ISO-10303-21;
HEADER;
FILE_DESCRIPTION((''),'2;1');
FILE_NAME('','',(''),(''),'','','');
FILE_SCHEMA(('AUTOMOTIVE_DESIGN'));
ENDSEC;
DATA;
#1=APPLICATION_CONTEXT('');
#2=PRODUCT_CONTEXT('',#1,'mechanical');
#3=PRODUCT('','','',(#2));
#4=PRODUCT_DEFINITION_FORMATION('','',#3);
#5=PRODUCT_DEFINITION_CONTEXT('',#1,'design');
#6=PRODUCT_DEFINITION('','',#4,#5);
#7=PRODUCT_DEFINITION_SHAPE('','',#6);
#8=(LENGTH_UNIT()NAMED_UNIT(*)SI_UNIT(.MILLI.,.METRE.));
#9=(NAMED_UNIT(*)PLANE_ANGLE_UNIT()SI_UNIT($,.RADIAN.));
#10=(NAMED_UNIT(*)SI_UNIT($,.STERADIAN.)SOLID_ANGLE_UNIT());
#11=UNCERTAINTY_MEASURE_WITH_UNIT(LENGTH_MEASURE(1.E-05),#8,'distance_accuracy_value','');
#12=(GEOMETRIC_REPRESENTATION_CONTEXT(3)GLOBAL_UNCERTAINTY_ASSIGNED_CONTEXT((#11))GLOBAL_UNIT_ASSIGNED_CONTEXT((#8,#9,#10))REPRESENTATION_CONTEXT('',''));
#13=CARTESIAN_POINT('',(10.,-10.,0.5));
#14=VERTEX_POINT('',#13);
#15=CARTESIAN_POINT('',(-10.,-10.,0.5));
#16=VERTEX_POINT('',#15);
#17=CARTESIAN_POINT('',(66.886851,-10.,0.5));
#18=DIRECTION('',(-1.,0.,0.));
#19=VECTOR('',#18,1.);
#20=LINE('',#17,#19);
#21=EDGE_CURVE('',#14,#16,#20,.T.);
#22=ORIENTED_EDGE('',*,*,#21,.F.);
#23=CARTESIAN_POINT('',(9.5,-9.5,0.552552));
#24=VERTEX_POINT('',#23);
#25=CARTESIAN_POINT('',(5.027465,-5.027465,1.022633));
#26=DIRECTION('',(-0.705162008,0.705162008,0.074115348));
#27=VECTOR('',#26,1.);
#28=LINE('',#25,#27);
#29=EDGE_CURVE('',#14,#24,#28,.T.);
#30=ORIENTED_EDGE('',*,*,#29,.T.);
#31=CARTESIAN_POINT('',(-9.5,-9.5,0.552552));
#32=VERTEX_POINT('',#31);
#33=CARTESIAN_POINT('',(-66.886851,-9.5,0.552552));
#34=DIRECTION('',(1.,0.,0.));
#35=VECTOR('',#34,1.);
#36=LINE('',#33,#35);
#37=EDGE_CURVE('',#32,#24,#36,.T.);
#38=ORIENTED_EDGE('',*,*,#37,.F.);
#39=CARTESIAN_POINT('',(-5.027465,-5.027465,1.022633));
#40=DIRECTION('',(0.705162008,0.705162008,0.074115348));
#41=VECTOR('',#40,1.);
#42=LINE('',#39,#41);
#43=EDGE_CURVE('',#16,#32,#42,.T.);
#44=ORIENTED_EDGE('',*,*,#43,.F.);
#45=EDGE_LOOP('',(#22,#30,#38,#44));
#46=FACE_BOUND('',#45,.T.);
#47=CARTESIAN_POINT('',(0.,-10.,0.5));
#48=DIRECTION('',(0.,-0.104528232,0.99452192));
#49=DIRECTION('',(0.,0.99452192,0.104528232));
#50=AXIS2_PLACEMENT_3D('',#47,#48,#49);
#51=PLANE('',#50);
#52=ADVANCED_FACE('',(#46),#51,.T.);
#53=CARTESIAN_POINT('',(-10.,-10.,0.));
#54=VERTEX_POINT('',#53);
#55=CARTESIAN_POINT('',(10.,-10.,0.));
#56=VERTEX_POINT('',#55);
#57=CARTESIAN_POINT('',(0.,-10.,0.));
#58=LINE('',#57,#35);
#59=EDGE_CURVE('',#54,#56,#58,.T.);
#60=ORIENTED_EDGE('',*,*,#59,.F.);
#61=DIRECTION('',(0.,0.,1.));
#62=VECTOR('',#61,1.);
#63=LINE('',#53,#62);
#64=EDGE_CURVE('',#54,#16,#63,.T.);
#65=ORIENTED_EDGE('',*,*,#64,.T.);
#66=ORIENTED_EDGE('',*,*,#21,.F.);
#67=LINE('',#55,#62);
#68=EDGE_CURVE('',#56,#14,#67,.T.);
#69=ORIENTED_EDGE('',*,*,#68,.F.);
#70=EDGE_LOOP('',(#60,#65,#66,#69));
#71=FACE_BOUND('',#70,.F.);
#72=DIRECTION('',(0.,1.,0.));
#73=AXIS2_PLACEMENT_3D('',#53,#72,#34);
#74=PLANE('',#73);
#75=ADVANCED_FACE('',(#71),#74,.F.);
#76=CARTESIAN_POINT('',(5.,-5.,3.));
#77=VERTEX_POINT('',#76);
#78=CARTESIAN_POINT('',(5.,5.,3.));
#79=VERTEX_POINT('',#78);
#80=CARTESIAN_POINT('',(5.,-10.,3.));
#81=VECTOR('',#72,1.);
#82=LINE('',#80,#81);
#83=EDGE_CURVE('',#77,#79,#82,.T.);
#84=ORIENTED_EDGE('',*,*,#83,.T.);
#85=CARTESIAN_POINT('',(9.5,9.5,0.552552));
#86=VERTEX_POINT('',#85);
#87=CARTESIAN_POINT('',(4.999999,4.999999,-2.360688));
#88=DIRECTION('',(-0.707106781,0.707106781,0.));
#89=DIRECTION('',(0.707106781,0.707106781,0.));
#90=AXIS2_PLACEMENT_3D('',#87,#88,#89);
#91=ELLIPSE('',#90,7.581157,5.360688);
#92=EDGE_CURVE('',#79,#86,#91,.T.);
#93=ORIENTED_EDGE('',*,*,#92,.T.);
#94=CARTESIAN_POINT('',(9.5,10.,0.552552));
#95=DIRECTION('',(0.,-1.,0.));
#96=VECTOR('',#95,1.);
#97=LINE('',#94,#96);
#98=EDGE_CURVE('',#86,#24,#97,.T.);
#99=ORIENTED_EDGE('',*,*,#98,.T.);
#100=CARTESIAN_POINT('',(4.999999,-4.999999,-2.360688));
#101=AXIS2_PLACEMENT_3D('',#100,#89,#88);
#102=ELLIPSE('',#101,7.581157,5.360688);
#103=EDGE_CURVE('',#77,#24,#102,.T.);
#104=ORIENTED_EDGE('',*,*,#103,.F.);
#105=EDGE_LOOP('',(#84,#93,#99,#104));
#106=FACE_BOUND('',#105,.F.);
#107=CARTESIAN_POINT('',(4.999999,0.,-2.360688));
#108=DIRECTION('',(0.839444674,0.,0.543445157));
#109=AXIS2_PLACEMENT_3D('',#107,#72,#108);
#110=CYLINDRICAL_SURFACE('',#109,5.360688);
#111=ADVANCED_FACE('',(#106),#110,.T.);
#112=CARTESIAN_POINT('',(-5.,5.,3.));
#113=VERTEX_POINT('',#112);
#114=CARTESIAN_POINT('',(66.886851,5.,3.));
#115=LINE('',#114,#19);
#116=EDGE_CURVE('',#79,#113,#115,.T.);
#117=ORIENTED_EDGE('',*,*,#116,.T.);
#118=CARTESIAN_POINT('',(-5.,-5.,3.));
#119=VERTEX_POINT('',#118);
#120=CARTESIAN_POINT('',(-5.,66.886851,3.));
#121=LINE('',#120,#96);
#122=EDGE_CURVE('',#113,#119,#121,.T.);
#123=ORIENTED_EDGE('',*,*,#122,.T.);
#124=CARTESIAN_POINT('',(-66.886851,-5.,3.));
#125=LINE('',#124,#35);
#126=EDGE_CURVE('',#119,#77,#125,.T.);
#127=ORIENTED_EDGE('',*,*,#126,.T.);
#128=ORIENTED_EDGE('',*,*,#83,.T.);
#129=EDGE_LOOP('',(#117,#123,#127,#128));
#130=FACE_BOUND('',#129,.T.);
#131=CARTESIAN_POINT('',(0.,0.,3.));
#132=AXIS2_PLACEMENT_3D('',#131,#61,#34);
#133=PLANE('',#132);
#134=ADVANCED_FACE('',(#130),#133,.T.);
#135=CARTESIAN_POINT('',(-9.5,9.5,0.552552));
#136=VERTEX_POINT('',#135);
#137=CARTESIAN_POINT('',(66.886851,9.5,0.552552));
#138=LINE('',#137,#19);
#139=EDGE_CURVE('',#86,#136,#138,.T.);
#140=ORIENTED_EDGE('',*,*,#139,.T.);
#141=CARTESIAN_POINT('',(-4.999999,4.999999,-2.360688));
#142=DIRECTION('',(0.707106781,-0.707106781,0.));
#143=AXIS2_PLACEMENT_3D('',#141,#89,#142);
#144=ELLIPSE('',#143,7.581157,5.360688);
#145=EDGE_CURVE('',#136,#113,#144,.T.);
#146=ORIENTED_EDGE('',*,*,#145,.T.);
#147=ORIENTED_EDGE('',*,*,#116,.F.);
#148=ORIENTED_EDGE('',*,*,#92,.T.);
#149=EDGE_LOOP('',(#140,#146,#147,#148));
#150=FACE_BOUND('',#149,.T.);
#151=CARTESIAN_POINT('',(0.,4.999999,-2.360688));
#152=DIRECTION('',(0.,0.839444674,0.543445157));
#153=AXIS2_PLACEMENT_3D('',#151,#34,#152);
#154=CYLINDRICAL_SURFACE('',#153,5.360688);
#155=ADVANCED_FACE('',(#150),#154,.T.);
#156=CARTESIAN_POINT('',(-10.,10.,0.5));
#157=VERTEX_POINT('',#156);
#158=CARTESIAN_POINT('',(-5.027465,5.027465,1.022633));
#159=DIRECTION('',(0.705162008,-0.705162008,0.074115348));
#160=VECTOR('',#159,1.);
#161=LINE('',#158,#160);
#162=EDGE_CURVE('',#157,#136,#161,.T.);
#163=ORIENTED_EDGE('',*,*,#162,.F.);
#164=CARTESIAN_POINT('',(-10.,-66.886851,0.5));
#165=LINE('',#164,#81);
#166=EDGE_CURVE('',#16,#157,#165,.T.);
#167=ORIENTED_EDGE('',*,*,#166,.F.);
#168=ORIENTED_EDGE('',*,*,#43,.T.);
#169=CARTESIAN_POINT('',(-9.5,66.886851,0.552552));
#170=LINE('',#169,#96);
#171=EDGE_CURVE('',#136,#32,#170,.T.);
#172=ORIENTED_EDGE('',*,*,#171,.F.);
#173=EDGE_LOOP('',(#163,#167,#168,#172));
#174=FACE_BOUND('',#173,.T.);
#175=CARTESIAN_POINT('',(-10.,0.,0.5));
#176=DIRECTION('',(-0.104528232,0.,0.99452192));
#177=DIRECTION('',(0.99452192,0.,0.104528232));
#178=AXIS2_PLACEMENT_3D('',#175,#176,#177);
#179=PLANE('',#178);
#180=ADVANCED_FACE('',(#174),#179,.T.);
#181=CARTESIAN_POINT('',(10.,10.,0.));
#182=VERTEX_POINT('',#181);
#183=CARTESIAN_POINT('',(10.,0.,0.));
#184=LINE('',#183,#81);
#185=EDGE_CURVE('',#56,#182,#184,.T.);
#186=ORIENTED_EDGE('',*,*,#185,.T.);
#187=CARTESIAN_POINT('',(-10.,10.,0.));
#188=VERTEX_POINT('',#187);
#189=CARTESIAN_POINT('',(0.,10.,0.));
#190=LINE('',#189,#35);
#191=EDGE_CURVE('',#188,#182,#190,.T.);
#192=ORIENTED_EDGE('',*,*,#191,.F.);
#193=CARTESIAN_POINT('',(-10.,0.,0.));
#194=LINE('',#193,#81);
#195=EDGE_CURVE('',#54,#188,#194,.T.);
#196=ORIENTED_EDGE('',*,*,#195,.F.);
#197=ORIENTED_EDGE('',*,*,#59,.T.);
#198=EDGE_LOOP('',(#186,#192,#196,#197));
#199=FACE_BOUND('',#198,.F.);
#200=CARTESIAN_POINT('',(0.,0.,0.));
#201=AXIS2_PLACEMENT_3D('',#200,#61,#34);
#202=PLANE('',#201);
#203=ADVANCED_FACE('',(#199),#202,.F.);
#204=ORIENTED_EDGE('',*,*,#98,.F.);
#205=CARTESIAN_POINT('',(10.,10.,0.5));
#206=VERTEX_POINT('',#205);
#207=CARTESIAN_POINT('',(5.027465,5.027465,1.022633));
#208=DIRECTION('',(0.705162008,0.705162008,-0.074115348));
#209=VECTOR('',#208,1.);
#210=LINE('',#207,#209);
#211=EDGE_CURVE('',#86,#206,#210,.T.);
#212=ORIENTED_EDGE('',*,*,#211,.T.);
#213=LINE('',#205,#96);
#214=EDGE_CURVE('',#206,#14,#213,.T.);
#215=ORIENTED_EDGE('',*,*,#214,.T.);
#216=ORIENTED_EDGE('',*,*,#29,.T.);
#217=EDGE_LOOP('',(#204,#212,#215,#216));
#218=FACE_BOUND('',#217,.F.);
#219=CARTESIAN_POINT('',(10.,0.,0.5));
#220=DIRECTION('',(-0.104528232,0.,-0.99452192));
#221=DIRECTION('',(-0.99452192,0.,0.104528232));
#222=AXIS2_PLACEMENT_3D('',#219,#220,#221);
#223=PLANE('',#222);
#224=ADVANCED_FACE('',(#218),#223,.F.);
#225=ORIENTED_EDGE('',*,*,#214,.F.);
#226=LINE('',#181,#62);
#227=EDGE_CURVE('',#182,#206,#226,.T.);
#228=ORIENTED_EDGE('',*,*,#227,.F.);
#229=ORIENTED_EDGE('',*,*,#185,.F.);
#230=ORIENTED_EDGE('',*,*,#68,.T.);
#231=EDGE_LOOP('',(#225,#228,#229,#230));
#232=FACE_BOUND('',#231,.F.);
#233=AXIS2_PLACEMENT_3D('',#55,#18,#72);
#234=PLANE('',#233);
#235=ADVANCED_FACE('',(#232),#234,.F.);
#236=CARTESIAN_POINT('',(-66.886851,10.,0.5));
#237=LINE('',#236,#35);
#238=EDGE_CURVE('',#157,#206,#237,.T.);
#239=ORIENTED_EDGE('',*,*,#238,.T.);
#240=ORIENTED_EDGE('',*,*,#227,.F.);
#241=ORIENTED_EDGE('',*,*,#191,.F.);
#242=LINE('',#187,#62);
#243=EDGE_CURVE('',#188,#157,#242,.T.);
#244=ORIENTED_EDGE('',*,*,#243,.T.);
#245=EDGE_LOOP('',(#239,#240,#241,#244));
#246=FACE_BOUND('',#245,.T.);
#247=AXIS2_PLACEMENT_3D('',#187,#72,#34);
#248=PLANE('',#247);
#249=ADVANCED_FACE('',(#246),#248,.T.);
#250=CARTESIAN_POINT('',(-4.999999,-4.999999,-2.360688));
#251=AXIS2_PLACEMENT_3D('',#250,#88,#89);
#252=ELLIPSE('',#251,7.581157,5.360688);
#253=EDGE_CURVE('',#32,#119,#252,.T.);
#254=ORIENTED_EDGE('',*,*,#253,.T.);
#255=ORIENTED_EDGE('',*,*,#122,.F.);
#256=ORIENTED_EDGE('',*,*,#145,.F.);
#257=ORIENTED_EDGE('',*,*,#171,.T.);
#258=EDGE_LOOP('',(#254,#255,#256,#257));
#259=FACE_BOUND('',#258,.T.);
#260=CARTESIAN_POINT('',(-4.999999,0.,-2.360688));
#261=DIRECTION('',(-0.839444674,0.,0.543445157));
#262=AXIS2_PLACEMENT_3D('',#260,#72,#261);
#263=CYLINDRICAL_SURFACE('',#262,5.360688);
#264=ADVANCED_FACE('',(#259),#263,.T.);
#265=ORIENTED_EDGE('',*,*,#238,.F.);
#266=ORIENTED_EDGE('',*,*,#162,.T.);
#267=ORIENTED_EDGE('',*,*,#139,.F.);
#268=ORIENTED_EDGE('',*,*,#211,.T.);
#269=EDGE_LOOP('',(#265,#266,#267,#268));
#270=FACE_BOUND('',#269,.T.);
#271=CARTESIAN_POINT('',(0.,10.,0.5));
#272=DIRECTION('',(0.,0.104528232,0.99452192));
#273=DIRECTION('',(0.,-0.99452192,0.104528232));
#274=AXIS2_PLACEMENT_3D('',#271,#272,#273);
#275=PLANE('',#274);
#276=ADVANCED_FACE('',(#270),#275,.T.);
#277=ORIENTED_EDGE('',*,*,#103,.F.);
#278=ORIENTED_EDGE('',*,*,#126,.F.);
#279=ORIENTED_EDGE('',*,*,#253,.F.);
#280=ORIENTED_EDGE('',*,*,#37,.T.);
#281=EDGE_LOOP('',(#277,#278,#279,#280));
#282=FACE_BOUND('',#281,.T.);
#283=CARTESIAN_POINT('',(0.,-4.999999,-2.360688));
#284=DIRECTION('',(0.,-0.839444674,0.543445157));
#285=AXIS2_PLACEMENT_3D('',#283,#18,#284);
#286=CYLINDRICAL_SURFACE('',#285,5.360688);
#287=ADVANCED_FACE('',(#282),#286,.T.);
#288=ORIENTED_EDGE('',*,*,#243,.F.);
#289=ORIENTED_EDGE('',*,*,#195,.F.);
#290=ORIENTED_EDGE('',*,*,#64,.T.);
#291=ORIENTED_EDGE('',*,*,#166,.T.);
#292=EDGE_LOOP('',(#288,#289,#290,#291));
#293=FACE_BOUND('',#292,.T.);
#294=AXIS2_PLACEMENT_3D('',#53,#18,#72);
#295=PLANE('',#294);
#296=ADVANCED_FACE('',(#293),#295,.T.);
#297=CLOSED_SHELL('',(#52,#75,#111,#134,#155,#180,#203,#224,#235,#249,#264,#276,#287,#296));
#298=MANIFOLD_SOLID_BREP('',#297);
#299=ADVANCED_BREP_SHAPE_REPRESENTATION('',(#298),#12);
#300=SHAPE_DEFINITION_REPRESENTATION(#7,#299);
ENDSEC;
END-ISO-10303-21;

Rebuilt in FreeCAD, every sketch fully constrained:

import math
import FreeCAD as App
import Part
import Sketcher
from FreeCAD import Vector
Q = App.Units.Quantity


def add_polygon(sketch, points):
    """Adds a closed chain of lines whose ends are joined by coincident constraints."""
    first, n = sketch.GeometryCount, len(points)
    for a, b in zip(points, points[1:] + points[:1]):
        sketch.addGeometry(Part.LineSegment(App.Vector(*a, 0), App.Vector(*b, 0)), False)
    for i in range(n):
        sketch.addConstraint(Sketcher.Constraint("Coincident", first + i, 2, first + (i + 1) % n, 1))

doc = App.newDocument("Part")
body = doc.addObject("PartDesign::Body", "Body")

sketch1 = doc.addObject("Sketcher::SketchObject", "Sketch")
body.addObject(sketch1)
sketch1.AttachmentSupport = (doc.XY_Plane, [""])
sketch1.MapMode = "FlatFace"
add_polygon(sketch1, [(-10, 10), (-10, -10), (10, -10), (10, 10)])
sketch1.addConstraint([
    Sketcher.Constraint("Vertical", 0),
    Sketcher.Constraint("Horizontal", 1),
    Sketcher.Constraint("Vertical", 2),
    Sketcher.Constraint("Horizontal", 3),
    Sketcher.Constraint("Symmetric", 0, 2, 2, 2, -1, 1),
    Sketcher.Constraint("Equal", 3, 0),
    Sketcher.Constraint("DistanceX", 1, 1, 1, 2, 20.0),
])
pad1 = doc.addObject("PartDesign::Pad", "Pad")
body.addObject(pad1)
pad1.Profile = sketch1
pad1.Length = 3

sketch2 = doc.addObject("Sketcher::SketchObject", "Sketch001")
body.addObject(sketch2)
sketch2.AttachmentSupport = (doc.XZ_Plane, [""])
sketch2.MapMode = "FlatFace"
sketch2.addGeometry([
    Part.LineSegment(Vector(9.5, 0.6, 0), Vector(10, 0.5, 0)),
    Part.LineSegment(Vector(10, 0.5, 0), Vector(10, 3, 0)),
    Part.LineSegment(Vector(10, 3, 0), Vector(5, 3, 0)),
    Part.ArcOfCircle(Part.Circle(Vector(5, -2.4, 0), Vector(0, 0, 1), 5.4), math.radians(33), math.radians(90)),
], False)
sketch2.addConstraint([
    Sketcher.Constraint("Coincident", 0, 2, 1, 1),
    Sketcher.Constraint("Coincident", 1, 2, 2, 1),
    Sketcher.Constraint("Tangent", 2, 2, 3, 2),
    Sketcher.Constraint("Coincident", 3, 1, 0, 1),
    Sketcher.Constraint("Vertical", 1),
    Sketcher.Constraint("Horizontal", 2),
    Sketcher.Constraint("DistanceX", 2, 2, 2, 1, 5.0),
    Sketcher.Constraint("Angle", 0, Q("-5.999987 deg")),
    Sketcher.Constraint("DistanceY", 1, 1, 1, 2, 2.5),
    Sketcher.Constraint("DistanceX", -1, 1, 3, 3, 4.999999),
    Sketcher.Constraint("DistanceY", -1, 1, 1, 2, 3.0),
    Sketcher.Constraint("DistanceX", -1, 1, 3, 1, 9.5),
])
pocket1 = doc.addObject("PartDesign::Pocket", "Pocket")
body.addObject(pocket1)
pocket1.Profile = sketch2
pocket1.Type = "ThroughAll"
pocket1.Midplane = True
doc.recompute()

polarpattern = doc.addObject("PartDesign::PolarPattern", "PolarPattern")
body.addObject(polarpattern)
polarpattern.Originals = [pocket1]
polarpattern.Axis = (doc.Z_Axis, [""])
polarpattern.Angle = 360
polarpattern.Occurrences = 4
body.Tip = polarpattern

doc.recompute()
